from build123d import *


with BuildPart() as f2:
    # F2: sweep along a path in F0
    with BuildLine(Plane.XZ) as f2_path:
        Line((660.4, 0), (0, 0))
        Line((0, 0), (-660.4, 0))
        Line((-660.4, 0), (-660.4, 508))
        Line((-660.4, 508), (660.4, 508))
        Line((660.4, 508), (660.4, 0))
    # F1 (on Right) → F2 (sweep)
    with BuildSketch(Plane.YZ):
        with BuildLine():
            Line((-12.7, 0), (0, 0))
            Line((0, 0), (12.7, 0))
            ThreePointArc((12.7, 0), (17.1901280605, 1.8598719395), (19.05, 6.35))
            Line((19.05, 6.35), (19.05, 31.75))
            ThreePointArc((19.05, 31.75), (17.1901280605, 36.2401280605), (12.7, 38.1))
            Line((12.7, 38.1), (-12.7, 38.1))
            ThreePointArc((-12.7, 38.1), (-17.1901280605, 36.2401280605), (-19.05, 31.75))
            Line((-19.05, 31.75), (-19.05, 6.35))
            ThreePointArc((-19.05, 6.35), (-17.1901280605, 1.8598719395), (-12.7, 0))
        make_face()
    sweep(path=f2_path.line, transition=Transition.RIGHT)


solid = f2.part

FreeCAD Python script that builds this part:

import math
import FreeCAD as App
import Part
import Sketcher
Q = App.Units.Quantity


def add_polygon(sketch, points):
    """Adds a closed chain of lines whose ends are joined by coincident constraints."""
    first, n = sketch.GeometryCount, len(points)
    for a, b in zip(points, points[1:] + points[:1]):
        sketch.addGeometry(Part.LineSegment(App.Vector(*a, 0), App.Vector(*b, 0)), False)
    for i in range(n):
        sketch.addConstraint(Sketcher.Constraint("Coincident", first + i, 2, first + (i + 1) % n, 1))

doc = App.newDocument("Part")
body = doc.addObject("PartDesign::Body", "Body")

# Sketch on YZ plane
sketch1 = doc.addObject("Sketcher::SketchObject", "Sketch")
body.addObject(sketch1)
sketch1.AttachmentSupport = (doc.YZ_Plane, [""])
sketch1.MapMode = "FlatFace"
sketch1.addGeometry(Part.LineSegment(App.Vector(-13, 0, 0), App.Vector(13, 0, 0)), False)
sketch1.addGeometry(Part.ArcOfCircle(Part.Circle(App.Vector(13, 6, 0), App.Vector(0, 0, 1), 6), math.radians(-90), math.radians(0)), False)
sketch1.addGeometry(Part.LineSegment(App.Vector(19, 6, 0), App.Vector(19, 32, 0)), False)
sketch1.addGeometry(Part.ArcOfCircle(Part.Circle(App.Vector(13, 32, 0), App.Vector(0, 0, 1), 6), math.radians(0), math.radians(90)), False)
sketch1.addGeometry(Part.LineSegment(App.Vector(13, 38, 0), App.Vector(-13, 38, 0)), False)
sketch1.addGeometry(Part.ArcOfCircle(Part.Circle(App.Vector(-13, 32, 0), App.Vector(0, 0, 1), 6), math.radians(90), math.radians(180)), False)
sketch1.addGeometry(Part.LineSegment(App.Vector(-19, 32, 0), App.Vector(-19, 6, 0)), False)
sketch1.addGeometry(Part.ArcOfCircle(Part.Circle(App.Vector(-13, 6, 0), App.Vector(0, 0, 1), 6), math.radians(180), math.radians(270)), False)
sketch1.addConstraint(Sketcher.Constraint("Tangent", 0, 2, 1, 1))
sketch1.addConstraint(Sketcher.Constraint("Tangent", 1, 2, 2, 1))
sketch1.addConstraint(Sketcher.Constraint("Tangent", 2, 2, 3, 1))
sketch1.addConstraint(Sketcher.Constraint("Tangent", 3, 2, 4, 1))
sketch1.addConstraint(Sketcher.Constraint("Tangent", 4, 2, 5, 1))
sketch1.addConstraint(Sketcher.Constraint("Tangent", 5, 2, 6, 1))
sketch1.addConstraint(Sketcher.Constraint("Tangent", 6, 2, 7, 1))
sketch1.addConstraint(Sketcher.Constraint("Tangent", 7, 2, 0, 1))
sketch1.addConstraint(Sketcher.Constraint("Horizontal", 0))
sketch1.addConstraint(Sketcher.Constraint("Vertical", 2))
sketch1.addConstraint(Sketcher.Constraint("Horizontal", 4))
sketch1.addConstraint(Sketcher.Constraint("Vertical", 6))
sketch1.addConstraint(Sketcher.Constraint("Equal", 1, 3))
sketch1.addConstraint(Sketcher.Constraint("Equal", 3, 5))
sketch1.addConstraint(Sketcher.Constraint("Equal", 5, 7))
sketch1.addConstraint(Sketcher.Constraint("Symmetric", 0, 2, 7, 2, -1, 1))
sketch1.addConstraint(Sketcher.Constraint("Equal", 4, 2))
sketch1.addConstraint(Sketcher.Constraint("DistanceX", 0, 1, 0, 2, Q("1 in")))
sketch1.addConstraint(Sketcher.Constraint("Radius", 1, Q("0.25 in")))

# Sketch on XZ plane
sketch2 = doc.addObject("Sketcher::SketchObject", "Sketch001")
body.addObject(sketch2)
sketch2.AttachmentSupport = (doc.XZ_Plane, [""])
sketch2.MapMode = "FlatFace"
add_polygon(sketch2, [(660, 0), (-660, 0), (-660, 508), (660, 508)])  # lines 0-3
sketch2.addConstraint(Sketcher.Constraint("Horizontal", 0))
sketch2.addConstraint(Sketcher.Constraint("Vertical", 1))
sketch2.addConstraint(Sketcher.Constraint("Horizontal", 2))
sketch2.addConstraint(Sketcher.Constraint("Vertical", 3))
sketch2.addConstraint(Sketcher.Constraint("Symmetric", 0, 2, 3, 2, -1, 1))
sketch2.addConstraint(Sketcher.Constraint("DistanceX", 0, 2, 0, 1, Q("52 in")))
sketch2.addConstraint(Sketcher.Constraint("DistanceY", 1, 1, 1, 2, Q("20 in")))
doc.recompute()

additivepipe = doc.addObject("PartDesign::AdditivePipe", "AdditivePipe")
body.addObject(additivepipe)
additivepipe.Profile = sketch1
additivepipe.Spine = (sketch2, ["Edge1", "Edge2", "Edge3", "Edge4"])
additivepipe.Transition = "Right corner"

doc.recompute()
